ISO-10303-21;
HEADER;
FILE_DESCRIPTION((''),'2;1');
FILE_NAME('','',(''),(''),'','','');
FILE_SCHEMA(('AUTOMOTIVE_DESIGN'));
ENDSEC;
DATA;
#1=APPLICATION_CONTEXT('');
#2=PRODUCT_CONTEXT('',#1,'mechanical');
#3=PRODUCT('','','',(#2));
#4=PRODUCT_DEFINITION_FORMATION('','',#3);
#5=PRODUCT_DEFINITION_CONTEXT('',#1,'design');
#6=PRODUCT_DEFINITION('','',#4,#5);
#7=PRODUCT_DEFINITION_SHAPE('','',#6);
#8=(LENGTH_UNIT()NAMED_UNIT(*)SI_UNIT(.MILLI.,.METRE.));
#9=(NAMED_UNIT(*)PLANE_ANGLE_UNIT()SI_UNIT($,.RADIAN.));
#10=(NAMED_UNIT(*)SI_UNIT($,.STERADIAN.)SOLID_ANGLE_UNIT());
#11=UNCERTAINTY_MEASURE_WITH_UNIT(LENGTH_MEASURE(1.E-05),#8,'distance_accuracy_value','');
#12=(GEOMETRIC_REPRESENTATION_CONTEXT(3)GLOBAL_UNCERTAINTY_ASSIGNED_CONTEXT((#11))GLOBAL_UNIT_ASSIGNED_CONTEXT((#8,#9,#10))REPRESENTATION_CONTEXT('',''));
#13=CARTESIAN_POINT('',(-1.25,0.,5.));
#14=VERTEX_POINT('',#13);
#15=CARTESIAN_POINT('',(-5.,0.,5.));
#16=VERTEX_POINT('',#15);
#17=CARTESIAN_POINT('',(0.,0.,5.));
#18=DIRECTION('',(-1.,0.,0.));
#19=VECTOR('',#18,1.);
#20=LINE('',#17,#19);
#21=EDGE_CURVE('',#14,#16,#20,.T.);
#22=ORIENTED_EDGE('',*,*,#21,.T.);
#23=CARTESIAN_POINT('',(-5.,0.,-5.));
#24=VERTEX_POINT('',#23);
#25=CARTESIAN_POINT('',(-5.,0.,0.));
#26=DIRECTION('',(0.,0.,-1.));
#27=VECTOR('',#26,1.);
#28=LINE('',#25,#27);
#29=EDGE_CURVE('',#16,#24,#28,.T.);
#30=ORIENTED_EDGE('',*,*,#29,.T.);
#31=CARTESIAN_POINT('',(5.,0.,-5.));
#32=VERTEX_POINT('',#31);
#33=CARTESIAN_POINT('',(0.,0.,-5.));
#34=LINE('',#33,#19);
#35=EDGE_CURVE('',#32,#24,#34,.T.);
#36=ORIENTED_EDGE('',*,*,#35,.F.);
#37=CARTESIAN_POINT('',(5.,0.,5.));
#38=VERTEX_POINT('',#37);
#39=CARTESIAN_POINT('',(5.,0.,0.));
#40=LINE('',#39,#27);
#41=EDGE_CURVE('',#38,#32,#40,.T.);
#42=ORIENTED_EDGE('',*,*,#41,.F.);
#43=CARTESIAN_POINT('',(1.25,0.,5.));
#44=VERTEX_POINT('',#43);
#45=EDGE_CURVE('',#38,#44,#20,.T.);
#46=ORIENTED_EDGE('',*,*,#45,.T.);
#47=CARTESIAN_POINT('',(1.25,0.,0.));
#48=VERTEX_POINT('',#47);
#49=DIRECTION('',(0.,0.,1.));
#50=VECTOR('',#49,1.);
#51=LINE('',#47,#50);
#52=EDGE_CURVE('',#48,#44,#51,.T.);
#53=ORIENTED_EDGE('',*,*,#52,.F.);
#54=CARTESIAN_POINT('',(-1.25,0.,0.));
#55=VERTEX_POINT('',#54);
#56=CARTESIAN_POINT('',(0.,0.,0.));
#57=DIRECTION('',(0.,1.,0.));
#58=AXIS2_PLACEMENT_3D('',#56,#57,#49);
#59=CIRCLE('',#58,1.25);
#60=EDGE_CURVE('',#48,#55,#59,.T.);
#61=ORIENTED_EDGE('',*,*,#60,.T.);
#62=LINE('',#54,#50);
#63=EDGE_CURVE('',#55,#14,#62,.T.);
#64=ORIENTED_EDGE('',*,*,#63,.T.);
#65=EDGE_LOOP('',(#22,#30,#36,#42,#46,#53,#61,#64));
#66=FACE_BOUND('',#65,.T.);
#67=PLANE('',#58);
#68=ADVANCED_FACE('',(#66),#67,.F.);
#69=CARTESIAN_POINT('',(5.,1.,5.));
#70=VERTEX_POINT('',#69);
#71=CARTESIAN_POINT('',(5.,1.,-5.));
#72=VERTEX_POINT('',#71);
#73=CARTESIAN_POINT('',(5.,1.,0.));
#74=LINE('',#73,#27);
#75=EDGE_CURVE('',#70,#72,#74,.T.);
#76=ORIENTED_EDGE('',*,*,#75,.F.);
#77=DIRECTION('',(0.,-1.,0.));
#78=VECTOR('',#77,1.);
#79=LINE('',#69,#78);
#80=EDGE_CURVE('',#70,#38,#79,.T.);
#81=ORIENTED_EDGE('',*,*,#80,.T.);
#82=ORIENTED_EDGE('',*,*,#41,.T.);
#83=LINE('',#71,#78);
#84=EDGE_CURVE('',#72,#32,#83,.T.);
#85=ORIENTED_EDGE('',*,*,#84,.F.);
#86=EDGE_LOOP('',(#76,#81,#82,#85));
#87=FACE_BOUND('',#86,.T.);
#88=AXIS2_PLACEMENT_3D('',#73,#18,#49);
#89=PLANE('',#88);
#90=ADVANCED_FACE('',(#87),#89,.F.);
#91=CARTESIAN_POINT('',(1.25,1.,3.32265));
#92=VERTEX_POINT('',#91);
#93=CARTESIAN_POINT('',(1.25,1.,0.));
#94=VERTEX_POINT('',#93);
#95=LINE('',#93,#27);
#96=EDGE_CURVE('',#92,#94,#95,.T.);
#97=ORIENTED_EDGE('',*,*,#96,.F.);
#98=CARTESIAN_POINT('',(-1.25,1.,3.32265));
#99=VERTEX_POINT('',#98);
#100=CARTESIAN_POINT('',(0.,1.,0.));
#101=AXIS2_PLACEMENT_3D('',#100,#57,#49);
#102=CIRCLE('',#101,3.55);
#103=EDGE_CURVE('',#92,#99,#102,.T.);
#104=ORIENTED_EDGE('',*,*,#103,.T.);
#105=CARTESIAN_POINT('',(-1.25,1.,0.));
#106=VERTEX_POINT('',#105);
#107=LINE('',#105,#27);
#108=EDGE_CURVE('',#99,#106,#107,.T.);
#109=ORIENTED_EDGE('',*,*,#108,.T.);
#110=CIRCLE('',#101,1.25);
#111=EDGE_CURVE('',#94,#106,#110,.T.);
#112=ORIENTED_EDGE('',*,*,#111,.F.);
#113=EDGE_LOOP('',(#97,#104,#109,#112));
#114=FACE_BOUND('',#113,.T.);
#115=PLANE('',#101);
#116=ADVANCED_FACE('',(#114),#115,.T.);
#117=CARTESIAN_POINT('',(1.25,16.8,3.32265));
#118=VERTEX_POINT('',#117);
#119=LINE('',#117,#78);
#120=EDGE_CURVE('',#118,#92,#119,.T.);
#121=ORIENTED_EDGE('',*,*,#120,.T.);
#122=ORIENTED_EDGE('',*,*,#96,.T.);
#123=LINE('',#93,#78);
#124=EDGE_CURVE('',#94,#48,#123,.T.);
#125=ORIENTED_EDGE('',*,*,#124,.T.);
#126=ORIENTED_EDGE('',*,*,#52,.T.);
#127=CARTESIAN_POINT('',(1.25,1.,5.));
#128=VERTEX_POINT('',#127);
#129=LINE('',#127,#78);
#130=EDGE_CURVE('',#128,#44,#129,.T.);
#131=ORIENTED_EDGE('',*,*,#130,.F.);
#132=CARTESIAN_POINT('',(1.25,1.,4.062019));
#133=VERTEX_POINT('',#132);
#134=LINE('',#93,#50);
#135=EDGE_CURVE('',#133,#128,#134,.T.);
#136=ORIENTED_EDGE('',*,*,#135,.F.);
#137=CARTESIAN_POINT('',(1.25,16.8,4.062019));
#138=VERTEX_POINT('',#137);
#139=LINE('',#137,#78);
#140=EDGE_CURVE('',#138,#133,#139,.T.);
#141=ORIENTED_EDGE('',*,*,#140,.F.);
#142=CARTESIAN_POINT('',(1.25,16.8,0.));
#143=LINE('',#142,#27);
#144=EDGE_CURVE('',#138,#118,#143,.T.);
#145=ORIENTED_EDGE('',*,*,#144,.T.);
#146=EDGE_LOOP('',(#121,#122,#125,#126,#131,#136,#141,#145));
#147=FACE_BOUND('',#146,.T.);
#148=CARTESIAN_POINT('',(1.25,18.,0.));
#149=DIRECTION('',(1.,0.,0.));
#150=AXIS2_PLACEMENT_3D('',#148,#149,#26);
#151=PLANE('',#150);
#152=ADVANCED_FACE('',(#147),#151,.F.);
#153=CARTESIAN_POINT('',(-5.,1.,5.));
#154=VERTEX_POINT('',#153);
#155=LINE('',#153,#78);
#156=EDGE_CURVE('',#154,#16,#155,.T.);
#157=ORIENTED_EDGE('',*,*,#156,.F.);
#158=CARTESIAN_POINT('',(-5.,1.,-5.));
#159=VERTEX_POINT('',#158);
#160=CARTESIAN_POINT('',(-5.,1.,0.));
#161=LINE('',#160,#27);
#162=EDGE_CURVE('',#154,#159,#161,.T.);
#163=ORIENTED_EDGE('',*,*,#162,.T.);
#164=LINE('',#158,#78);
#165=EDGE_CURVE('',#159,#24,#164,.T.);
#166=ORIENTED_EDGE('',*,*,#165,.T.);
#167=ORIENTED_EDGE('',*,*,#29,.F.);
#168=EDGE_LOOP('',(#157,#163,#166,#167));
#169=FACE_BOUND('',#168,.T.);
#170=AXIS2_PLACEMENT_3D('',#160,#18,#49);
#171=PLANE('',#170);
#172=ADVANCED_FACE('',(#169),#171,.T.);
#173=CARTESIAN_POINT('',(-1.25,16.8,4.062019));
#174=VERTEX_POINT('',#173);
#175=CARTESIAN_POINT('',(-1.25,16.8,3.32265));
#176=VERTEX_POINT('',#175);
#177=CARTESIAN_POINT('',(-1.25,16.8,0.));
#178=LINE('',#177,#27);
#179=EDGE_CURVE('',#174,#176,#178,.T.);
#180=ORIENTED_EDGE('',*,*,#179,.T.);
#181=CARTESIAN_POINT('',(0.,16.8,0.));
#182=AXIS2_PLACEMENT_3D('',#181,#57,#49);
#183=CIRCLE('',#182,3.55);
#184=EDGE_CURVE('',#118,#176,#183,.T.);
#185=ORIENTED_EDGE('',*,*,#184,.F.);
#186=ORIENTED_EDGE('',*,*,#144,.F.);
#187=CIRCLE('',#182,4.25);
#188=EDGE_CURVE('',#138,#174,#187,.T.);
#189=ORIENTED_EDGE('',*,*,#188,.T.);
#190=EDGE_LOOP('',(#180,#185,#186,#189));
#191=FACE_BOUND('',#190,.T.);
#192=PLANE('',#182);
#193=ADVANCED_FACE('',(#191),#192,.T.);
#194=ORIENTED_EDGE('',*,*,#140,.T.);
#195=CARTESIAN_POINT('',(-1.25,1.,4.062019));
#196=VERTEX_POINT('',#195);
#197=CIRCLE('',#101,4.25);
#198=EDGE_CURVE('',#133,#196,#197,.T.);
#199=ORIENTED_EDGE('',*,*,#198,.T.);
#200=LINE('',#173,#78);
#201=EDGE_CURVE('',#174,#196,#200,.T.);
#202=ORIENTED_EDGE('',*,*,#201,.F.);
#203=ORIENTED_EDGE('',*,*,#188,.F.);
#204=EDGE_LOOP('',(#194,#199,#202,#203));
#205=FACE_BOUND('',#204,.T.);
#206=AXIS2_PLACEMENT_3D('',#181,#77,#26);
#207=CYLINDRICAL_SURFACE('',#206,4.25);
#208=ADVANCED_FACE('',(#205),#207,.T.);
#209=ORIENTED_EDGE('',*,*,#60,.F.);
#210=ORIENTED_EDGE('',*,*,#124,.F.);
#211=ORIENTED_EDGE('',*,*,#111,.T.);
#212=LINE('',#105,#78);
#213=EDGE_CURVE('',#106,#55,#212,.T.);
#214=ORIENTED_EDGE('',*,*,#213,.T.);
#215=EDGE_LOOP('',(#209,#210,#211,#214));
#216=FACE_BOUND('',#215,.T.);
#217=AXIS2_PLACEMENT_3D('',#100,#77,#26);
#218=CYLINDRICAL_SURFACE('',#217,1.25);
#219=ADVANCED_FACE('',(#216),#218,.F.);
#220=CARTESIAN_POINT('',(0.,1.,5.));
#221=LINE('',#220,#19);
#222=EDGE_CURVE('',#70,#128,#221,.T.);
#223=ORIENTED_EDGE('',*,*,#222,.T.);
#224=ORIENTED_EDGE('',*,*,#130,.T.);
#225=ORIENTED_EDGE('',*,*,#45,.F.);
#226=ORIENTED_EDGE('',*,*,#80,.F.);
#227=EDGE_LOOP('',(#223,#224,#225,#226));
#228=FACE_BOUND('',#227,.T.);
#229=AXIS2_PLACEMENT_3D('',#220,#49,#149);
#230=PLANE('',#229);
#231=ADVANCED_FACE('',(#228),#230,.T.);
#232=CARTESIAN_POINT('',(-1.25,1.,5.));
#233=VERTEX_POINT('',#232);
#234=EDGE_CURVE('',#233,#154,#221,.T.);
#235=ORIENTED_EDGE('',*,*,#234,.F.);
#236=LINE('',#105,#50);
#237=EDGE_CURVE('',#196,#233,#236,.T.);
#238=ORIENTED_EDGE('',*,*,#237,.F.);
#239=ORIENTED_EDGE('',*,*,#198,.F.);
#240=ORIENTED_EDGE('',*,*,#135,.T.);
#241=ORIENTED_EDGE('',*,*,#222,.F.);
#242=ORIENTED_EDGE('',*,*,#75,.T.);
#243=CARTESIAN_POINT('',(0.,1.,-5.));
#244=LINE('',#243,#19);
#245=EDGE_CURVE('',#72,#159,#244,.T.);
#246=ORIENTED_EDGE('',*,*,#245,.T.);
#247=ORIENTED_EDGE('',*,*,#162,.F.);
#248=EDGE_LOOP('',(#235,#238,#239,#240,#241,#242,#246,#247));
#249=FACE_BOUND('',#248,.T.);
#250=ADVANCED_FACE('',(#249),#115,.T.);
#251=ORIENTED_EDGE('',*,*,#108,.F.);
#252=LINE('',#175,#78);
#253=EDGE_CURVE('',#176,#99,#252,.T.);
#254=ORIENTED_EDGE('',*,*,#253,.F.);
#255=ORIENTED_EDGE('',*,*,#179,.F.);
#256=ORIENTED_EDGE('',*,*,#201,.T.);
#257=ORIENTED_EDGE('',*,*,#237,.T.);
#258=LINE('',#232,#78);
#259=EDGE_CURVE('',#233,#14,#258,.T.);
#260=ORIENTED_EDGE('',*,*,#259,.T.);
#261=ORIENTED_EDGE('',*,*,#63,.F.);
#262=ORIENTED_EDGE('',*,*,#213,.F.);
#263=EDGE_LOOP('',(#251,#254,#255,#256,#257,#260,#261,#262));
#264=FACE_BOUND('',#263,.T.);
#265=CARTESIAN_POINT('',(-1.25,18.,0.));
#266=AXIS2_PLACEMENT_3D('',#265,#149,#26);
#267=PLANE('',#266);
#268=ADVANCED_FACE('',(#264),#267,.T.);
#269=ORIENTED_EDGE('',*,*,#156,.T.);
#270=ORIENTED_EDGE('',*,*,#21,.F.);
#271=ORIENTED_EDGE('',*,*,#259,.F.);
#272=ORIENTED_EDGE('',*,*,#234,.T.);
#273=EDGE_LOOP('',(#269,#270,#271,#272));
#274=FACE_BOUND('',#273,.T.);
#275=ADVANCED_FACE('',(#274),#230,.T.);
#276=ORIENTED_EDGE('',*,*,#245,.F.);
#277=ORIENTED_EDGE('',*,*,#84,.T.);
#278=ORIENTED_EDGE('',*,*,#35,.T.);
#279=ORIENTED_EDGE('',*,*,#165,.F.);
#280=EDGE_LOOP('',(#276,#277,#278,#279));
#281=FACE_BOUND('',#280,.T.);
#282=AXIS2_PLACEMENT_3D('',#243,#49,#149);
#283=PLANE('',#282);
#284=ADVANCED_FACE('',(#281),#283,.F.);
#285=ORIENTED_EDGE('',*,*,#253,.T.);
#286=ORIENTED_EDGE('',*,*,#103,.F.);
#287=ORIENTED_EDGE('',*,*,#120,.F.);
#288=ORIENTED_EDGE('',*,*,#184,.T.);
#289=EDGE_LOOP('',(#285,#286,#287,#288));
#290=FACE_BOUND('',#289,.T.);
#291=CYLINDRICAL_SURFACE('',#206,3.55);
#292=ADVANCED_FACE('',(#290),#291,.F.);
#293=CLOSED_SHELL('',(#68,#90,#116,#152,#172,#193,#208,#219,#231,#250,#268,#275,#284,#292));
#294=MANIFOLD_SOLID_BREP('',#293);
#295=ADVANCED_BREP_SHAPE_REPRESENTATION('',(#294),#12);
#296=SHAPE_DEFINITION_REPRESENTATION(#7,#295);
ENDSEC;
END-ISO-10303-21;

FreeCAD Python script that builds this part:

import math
import FreeCAD as App
import Part
import Sketcher

doc = App.newDocument("Part")
body = doc.addObject("PartDesign::Body", "Body")

sketch1 = body.newObject("Sketcher::SketchObject", "Sketch")
sketch1.AttachmentSupport = (doc.getObject("XZ_Plane"), [""])
sketch1.MapMode = "FlatFace"
sketch1.addGeometry([
    Part.Circle(App.Vector(0, 0, 0), App.Vector(0, 0, 1), 4.2),
    Part.Circle(App.Vector(0, 0, 0), App.Vector(0, 0, 1), 3.5),
], False)
sketch1.addConstraint([
    Sketcher.Constraint("Coincident", 0, 3, -1, 1),
    Sketcher.Constraint("Coincident", 1, 3, -1, 1),
    Sketcher.Constraint("Diameter", 0, 8.5),
    Sketcher.Constraint("Diameter", 1, 7.1),
])
pad1 = body.newObject("PartDesign::Pad", "Pad")
pad1.Profile = sketch1
pad1.Length = 16.8
pad1.Reversed = True

sketch2 = body.newObject("Sketcher::SketchObject", "Sketch001")
sketch2.AttachmentSupport = (doc.getObject("XZ_Plane"), [""])
sketch2.MapMode = "FlatFace"
sketch2.addGeometry([
    Part.Circle(App.Vector(0, 0, 0), App.Vector(0, 0, 1), 3.5),
    Part.Circle(App.Vector(0, 0, 0), App.Vector(0, 0, 1), 1.2),
], False)
sketch2.addConstraint([
    Sketcher.Constraint("Coincident", 0, 3, -1, 1),
    Sketcher.Constraint("Coincident", 1, 3, -1, 1),
    Sketcher.Constraint("Diameter", 0, 7.1),
    Sketcher.Constraint("Diameter", 1, 2.5),
])
pad2 = body.newObject("PartDesign::Pad", "Pad001")
pad2.Profile = sketch2
pad2.Length = 1
pad2.Reversed = True

sketch3 = body.newObject("Sketcher::SketchObject", "Sketch002")
sketch3.AttachmentSupport = (doc.getObject("XZ_Plane"), [""])
sketch3.MapMode = "FlatFace"
sketch3.addGeometry([
    Part.ArcOfCircle(Part.Circle(App.Vector(0, 0, 0), App.Vector(0, 0, 1), 1.2), math.radians(0), math.radians(180)),
    Part.LineSegment(App.Vector(-1.2, 0, 0), App.Vector(-1.2, 5.1, 0)),
    Part.LineSegment(App.Vector(-1.2, 5.1, 0), App.Vector(1.2, 5.1, 0)),
    Part.LineSegment(App.Vector(1.2, 5.1, 0), App.Vector(1.2, 0, 0)),
], False)
sketch3.addConstraint([
    Sketcher.Constraint("Tangent", 0, 2, 1, 1),
    Sketcher.Constraint("Coincident", 1, 2, 2, 1),
    Sketcher.Constraint("Coincident", 2, 2, 3, 1),
    Sketcher.Constraint("Tangent", 3, 2, 0, 1),
    Sketcher.Constraint("Vertical", 1),
    Sketcher.Constraint("Horizontal", 2),
    Sketcher.Constraint("Vertical", 3),
    Sketcher.Constraint("Coincident", 0, 3, -1, 1),
    Sketcher.Constraint("Radius", 0, 1.25),
    Sketcher.Constraint("DistanceY", 1, 1, 1, 2, 5.072283),
])
pocket1 = body.newObject("PartDesign::Pocket", "Pocket")
pocket1.Profile = sketch3
pocket1.Length = 18

sketch4 = body.newObject("Sketcher::SketchObject", "Sketch003")
sketch4.AttachmentSupport = (doc.getObject("XZ_Plane"), [""])
sketch4.MapMode = "FlatFace"
sketch4.addGeometry([
    Part.LineSegment(App.Vector(-1.2, 5, 0), App.Vector(-1.2, 0, 0)),
    Part.ArcOfCircle(Part.Circle(App.Vector(0, 0, 0), App.Vector(0, 0, 1), 1.2), math.radians(180), math.radians(360)),
    Part.LineSegment(App.Vector(1.2, 0, 0), App.Vector(1.2, 5, 0)),
    Part.LineSegment(App.Vector(1.2, 5, 0), App.Vector(5, 5, 0)),
    Part.LineSegment(App.Vector(5, 5, 0), App.Vector(5, -5, 0)),
    Part.LineSegment(App.Vector(5, -5, 0), App.Vector(-5, -5, 0)),
    Part.LineSegment(App.Vector(-5, -5, 0), App.Vector(-5, 5, 0)),
    Part.LineSegment(App.Vector(-5, 5, 0), App.Vector(-1.2, 5, 0)),
], False)
sketch4.addConstraint([
    Sketcher.Constraint("Tangent", 0, 2, 1, 1),
    Sketcher.Constraint("Tangent", 1, 2, 2, 1),
    Sketcher.Constraint("Coincident", 2, 2, 3, 1),
    Sketcher.Constraint("Coincident", 3, 2, 4, 1),
    Sketcher.Constraint("Coincident", 4, 2, 5, 1),
    Sketcher.Constraint("Coincident", 5, 2, 6, 1),
    Sketcher.Constraint("Coincident", 6, 2, 7, 1),
    Sketcher.Constraint("Coincident", 7, 2, 0, 1),
    Sketcher.Constraint("Vertical", 0),
    Sketcher.Constraint("Vertical", 2),
    Sketcher.Constraint("Horizontal", 3),
    Sketcher.Constraint("Vertical", 4),
    Sketcher.Constraint("Horizontal", 5),
    Sketcher.Constraint("Vertical", 6),
    Sketcher.Constraint("Horizontal", 7),
    Sketcher.Constraint("Coincident", 1, 3, -1, 1),
    Sketcher.Constraint("Symmetric", 3, 2, 5, 2, -1, 1),
    Sketcher.Constraint("Horizontal", 3, 2, 6, 2),
    Sketcher.Constraint("Equal", 5, 4),
    Sketcher.Constraint("DistanceX", 5, 2, 5, 1, 10.0),
    Sketcher.Constraint("Radius", 1, 1.25),
])
pad3 = body.newObject("PartDesign::Pad", "Pad002")
pad3.Profile = sketch4
pad3.Length = 1
pad3.Reversed = True

doc.recompute()
